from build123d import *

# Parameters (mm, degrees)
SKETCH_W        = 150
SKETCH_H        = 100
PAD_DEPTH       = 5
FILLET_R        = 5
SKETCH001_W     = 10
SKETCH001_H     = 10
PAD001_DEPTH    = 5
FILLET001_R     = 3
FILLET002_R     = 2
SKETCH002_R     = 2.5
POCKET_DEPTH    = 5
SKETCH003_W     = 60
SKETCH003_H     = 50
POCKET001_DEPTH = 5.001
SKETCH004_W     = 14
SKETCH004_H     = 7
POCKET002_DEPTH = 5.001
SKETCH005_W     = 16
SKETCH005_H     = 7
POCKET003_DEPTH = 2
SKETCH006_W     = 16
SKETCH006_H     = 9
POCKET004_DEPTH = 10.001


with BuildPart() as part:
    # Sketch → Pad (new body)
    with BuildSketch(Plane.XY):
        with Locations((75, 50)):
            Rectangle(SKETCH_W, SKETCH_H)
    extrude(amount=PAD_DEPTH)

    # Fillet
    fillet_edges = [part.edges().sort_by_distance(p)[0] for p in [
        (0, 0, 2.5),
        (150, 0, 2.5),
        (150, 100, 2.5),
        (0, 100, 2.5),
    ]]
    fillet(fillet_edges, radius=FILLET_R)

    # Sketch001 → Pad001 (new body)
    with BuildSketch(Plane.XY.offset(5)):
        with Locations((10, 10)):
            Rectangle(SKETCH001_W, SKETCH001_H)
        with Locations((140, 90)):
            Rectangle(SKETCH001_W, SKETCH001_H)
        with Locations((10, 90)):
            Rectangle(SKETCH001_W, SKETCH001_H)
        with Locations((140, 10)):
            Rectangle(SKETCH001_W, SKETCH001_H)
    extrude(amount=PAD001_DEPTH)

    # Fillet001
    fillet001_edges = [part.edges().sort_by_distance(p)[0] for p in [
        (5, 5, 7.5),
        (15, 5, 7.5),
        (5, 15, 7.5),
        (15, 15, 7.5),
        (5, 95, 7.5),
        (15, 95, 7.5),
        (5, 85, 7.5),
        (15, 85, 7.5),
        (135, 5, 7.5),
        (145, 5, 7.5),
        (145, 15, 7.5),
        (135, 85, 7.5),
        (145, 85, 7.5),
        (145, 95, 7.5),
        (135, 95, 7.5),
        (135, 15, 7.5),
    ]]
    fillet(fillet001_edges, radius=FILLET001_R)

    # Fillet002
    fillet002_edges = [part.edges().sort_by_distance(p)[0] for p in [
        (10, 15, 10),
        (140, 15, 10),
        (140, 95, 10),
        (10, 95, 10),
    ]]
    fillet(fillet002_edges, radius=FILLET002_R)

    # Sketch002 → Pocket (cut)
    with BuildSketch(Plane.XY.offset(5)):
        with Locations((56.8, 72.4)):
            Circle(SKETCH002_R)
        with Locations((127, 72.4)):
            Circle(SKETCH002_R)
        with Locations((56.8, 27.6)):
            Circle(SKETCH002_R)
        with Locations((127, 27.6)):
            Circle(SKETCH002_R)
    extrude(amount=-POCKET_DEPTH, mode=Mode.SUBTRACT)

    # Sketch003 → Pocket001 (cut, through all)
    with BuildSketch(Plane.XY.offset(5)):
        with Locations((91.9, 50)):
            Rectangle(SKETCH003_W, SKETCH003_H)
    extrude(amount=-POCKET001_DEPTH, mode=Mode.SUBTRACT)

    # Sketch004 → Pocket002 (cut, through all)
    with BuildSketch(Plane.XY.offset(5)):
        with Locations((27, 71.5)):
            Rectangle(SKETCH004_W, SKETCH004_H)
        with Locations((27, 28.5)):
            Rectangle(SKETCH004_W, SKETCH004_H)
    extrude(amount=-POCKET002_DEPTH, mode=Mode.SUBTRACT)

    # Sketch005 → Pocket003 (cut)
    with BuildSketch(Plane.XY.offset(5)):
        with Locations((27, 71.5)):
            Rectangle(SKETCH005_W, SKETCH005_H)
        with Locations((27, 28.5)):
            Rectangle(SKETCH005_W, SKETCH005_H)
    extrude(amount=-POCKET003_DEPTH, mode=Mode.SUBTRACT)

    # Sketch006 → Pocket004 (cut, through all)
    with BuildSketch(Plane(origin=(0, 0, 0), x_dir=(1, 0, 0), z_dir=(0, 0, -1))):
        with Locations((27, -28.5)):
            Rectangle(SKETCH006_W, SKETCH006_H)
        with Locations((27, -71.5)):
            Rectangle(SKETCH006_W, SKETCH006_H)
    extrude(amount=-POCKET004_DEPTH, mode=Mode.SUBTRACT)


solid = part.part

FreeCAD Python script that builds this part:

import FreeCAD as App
import Part
import Sketcher


def edges_at(feature, points):
    """Names of the edges that pass closest to the given points."""
    edges = feature.Shape.Edges
    near = lambda p: min(range(len(edges)), key=lambda i: edges[i].distToShape(Part.Vertex(*p))[0])
    return sorted({f"Edge{near(p) + 1}" for p in points})


def add_polygon(sketch, points):
    """Adds a closed chain of lines whose ends are joined by coincident constraints."""
    first, n = sketch.GeometryCount, len(points)
    for a, b in zip(points, points[1:] + points[:1]):
        sketch.addGeometry(Part.LineSegment(App.Vector(*a, 0), App.Vector(*b, 0)), False)
    for i in range(n):
        sketch.addConstraint(Sketcher.Constraint("Coincident", first + i, 2, first + (i + 1) % n, 1))

doc = App.newDocument("Part")
params = doc.addObject("Spreadsheet::Sheet", "Params")
for row, (alias, value) in enumerate([
    ("sketch1_width", "150 mm"),
    ("sketch1_height", "100 mm"),
    ("pad1_length", "5 mm"),
    ("fillet_radius", "5 mm"),
    ("sketch2_width", "10 mm"),
    ("pad2_length", "5 mm"),
    ("fillet2_radius", "3 mm"),
    ("fillet3_radius", "2 mm"),
    ("sketch3_diameter", "5 mm"),
    ("pocket1_length", "5 mm"),
    ("sketch4_width", "60 mm"),
    ("sketch4_height", "50 mm"),
    ("sketch5_width", "14 mm"),
    ("sketch5_height", "7 mm"),
    ("sketch6_width", "16 mm"),
    ("sketch6_height", "7 mm"),
    ("pocket4_length", "2 mm"),
    ("sketch7_width", "16 mm"),
    ("sketch7_height", "9 mm"),
], start=1):
    params.set(f"A{row}", alias)
    params.set(f"B{row}", "=" + value)
    params.setAlias(f"B{row}", alias)

body = doc.addObject("PartDesign::Body", "Body")

# Sketch on XY plane
sketch1 = body.newObject("Sketcher::SketchObject", "Sketch")
sketch1.AttachmentSupport = (doc.getObject("XY_Plane"), [""])
sketch1.MapMode = "FlatFace"
add_polygon(sketch1, [(0, 100), (0, 0), (150, 0), (150, 100)])  # lines 0-3
sketch1.addConstraint([
    Sketcher.Constraint("Vertical", 0),
    Sketcher.Constraint("Horizontal", 1),
    Sketcher.Constraint("Vertical", 2),
    Sketcher.Constraint("Horizontal", 3),
    Sketcher.Constraint("Coincident", 0, 2, -1, 1),
    Sketcher.Constraint("DistanceX", 1, 1, 1, 2, 150.0),
    Sketcher.Constraint("DistanceY", 0, 2, 0, 1, 100.0),
])
sketch1.setExpression("Constraints[9]", "Params.sketch1_width")
sketch1.setExpression("Constraints[10]", "Params.sketch1_height")
pad1 = body.newObject("PartDesign::Pad", "Pad")
pad1.Profile = sketch1
pad1.setExpression("Length", "Params.pad1_length")
doc.recompute()

fillet = body.newObject("PartDesign::Fillet", "Fillet")
fillet.Base = (pad1, edges_at(pad1, [
    (0, 0, 2.5),
    (150, 0, 2.5),
    (150, 100, 2.5),
    (0, 100, 2.5),
]))
fillet.setExpression("Radius", "Params.fillet_radius")

# Sketch on XY plane
sketch2 = body.newObject("Sketcher::SketchObject", "Sketch001")
sketch2.AttachmentSupport = (doc.getObject("XY_Plane"), [""])
sketch2.MapMode = "FlatFace"
sketch2.AttachmentOffset = App.Placement(App.Vector(0, 0, 5), App.Rotation())
add_polygon(sketch2, [(5, 15), (5, 5), (15, 5), (15, 15)])  # lines 0-3
add_polygon(sketch2, [(135, 95), (135, 85), (145, 85), (145, 95)])  # lines 4-7
add_polygon(sketch2, [(5, 95), (5, 85), (15, 85), (15, 95)])  # lines 8-11
add_polygon(sketch2, [(135, 15), (135, 5), (145, 5), (145, 15)])  # lines 12-15
sketch2.addConstraint([
    Sketcher.Constraint("Vertical", 0),
    Sketcher.Constraint("Horizontal", 1),
    Sketcher.Constraint("Vertical", 2),
    Sketcher.Constraint("Horizontal", 3),
    Sketcher.Constraint("Vertical", 4),
    Sketcher.Constraint("Horizontal", 5),
    Sketcher.Constraint("Vertical", 6),
    Sketcher.Constraint("Horizontal", 7),
    Sketcher.Constraint("Vertical", 8),
    Sketcher.Constraint("Horizontal", 9),
    Sketcher.Constraint("Vertical", 10),
    Sketcher.Constraint("Horizontal", 11),
    Sketcher.Constraint("Vertical", 12),
    Sketcher.Constraint("Horizontal", 13),
    Sketcher.Constraint("Vertical", 14),
    Sketcher.Constraint("Horizontal", 15),
    Sketcher.Constraint("Horizontal", 5, 2, 8, 2),
    Sketcher.Constraint("Horizontal", 7, 2, 10, 2),
    Sketcher.Constraint("Horizontal", 1, 2, 12, 2),
    Sketcher.Constraint("Horizontal", 3, 2, 14, 2),
    Sketcher.Constraint("Vertical", 3, 2, 8, 2),
    Sketcher.Constraint("Vertical", 2, 2, 9, 2),
    Sketcher.Constraint("Vertical", 7, 2, 12, 2),
    Sketcher.Constraint("Vertical", 6, 2, 13, 2),
    Sketcher.Constraint("Equal", 3, 5),
    Sketcher.Constraint("Equal", 15, 0),
    Sketcher.Constraint("Equal", 2, 4),
    Sketcher.Constraint("DistanceX", 1, 1, 1, 2, 10.0),
    Sketcher.Constraint("DistanceX", -1, 1, 0, 2, 5.0),
    Sketcher.Constraint("DistanceY", -1, 1, 0, 2, 5.0),
    Sketcher.Constraint("DistanceX", -1, 1, 4, 2, 135.0),
    Sketcher.Constraint("DistanceY", -1, 1, 4, 2, 85.0),
])
sketch2.setExpression("Constraints[43]", "Params.sketch2_width")
pad2 = body.newObject("PartDesign::Pad", "Pad001")
pad2.Profile = sketch2
pad2.setExpression("Length", "Params.pad2_length")
doc.recompute()

fillet2 = body.newObject("PartDesign::Fillet", "Fillet001")
fillet2.Base = (pad2, edges_at(pad2, [
    (5, 5, 7.5),
    (15, 5, 7.5),
    (5, 15, 7.5),
    (15, 15, 7.5),
    (5, 95, 7.5),
    (15, 95, 7.5),
    (5, 85, 7.5),
    (15, 85, 7.5),
    (135, 5, 7.5),
    (145, 5, 7.5),
    (145, 15, 7.5),
    (135, 85, 7.5),
    (145, 85, 7.5),
    (145, 95, 7.5),
    (135, 95, 7.5),
    (135, 15, 7.5),
]))
fillet2.setExpression("Radius", "Params.fillet2_radius")
doc.recompute()

fillet3 = body.newObject("PartDesign::Fillet", "Fillet002")
fillet3.Base = (fillet2, edges_at(fillet2, [
    (10, 15, 10),
    (140, 15, 10),
    (140, 95, 10),
    (10, 95, 10),
]))
fillet3.setExpression("Radius", "Params.fillet3_radius")

# Sketch on XY plane
sketch3 = body.newObject("Sketcher::SketchObject", "Sketch002")
sketch3.AttachmentSupport = (doc.getObject("XY_Plane"), [""])
sketch3.MapMode = "FlatFace"
sketch3.AttachmentOffset = App.Placement(App.Vector(0, 0, 5), App.Rotation())
sketch3.addGeometry([
    Part.Circle(App.Vector(56.8, 72.4, 0), App.Vector(0, 0, 1), 2.5),
    Part.Circle(App.Vector(127, 72.4, 0), App.Vector(0, 0, 1), 2.5),
    Part.Circle(App.Vector(56.8, 27.6, 0), App.Vector(0, 0, 1), 2.5),
    Part.Circle(App.Vector(127, 27.6, 0), App.Vector(0, 0, 1), 2.5),
], False)
sketch3.addConstraint([
    Sketcher.Constraint("Equal", 0, 1),
    Sketcher.Constraint("Equal", 1, 2),
    Sketcher.Constraint("Equal", 2, 3),
    Sketcher.Constraint("Horizontal", 0, 3, 1, 3),
    Sketcher.Constraint("Horizontal", 2, 3, 3, 3),
    Sketcher.Constraint("Vertical", 0, 3, 2, 3),
    Sketcher.Constraint("Vertical", 1, 3, 3, 3),
    Sketcher.Constraint("Diameter", 0, 5.0),
    Sketcher.Constraint("DistanceX", -1, 1, 1, 3, 127.0),
    Sketcher.Constraint("DistanceX", -1, 1, 0, 3, 56.8),
    Sketcher.Constraint("DistanceY", -1, 1, 0, 3, 72.4),
    Sketcher.Constraint("DistanceY", -1, 1, 2, 3, 27.6),
])
sketch3.setExpression("Constraints[7]", "Params.sketch3_diameter")
pocket1 = body.newObject("PartDesign::Pocket", "Pocket")
pocket1.Profile = sketch3
pocket1.setExpression("Length", "Params.pocket1_length")

# Sketch on XY plane
sketch4 = body.newObject("Sketcher::SketchObject", "Sketch003")
sketch4.AttachmentSupport = (doc.getObject("XY_Plane"), [""])
sketch4.MapMode = "FlatFace"
sketch4.AttachmentOffset = App.Placement(App.Vector(0, 0, 5), App.Rotation())
add_polygon(sketch4, [(62, 75), (62, 25), (122, 25), (122, 75)])  # lines 0-3
sketch4.addConstraint([
    Sketcher.Constraint("Vertical", 0),
    Sketcher.Constraint("Horizontal", 1),
    Sketcher.Constraint("Vertical", 2),
    Sketcher.Constraint("Horizontal", 3),
    Sketcher.Constraint("DistanceX", 1, 1, 1, 2, 60.0),
    Sketcher.Constraint("DistanceY", 0, 2, 0, 1, 50.0),
    Sketcher.Constraint("DistanceY", -1, 1, 0, 2, 25.0),
    Sketcher.Constraint("DistanceX", -1, 1, 0, 2, 61.9),
])
sketch4.setExpression("Constraints[8]", "Params.sketch4_width")
sketch4.setExpression("Constraints[9]", "Params.sketch4_height")
pocket2 = body.newObject("PartDesign::Pocket", "Pocket001")
pocket2.Profile = sketch4
pocket2.Type = "ThroughAll"

# Sketch on XY plane
sketch5 = body.newObject("Sketcher::SketchObject", "Sketch004")
sketch5.AttachmentSupport = (doc.getObject("XY_Plane"), [""])
sketch5.MapMode = "FlatFace"
sketch5.AttachmentOffset = App.Placement(App.Vector(0, 0, 5), App.Rotation())
add_polygon(sketch5, [(20, 75), (20, 68), (34, 68), (34, 75)])  # lines 0-3
add_polygon(sketch5, [(20, 32), (20, 25), (34, 25), (34, 32)])  # lines 4-7
sketch5.addConstraint([
    Sketcher.Constraint("Vertical", 0),
    Sketcher.Constraint("Horizontal", 1),
    Sketcher.Constraint("Vertical", 2),
    Sketcher.Constraint("Horizontal", 3),
    Sketcher.Constraint("Vertical", 4),
    Sketcher.Constraint("Horizontal", 5),
    Sketcher.Constraint("Vertical", 6),
    Sketcher.Constraint("Horizontal", 7),
    Sketcher.Constraint("Vertical", 3, 2, 4, 2),
    Sketcher.Constraint("Vertical", 2, 2, 5, 2),
    Sketcher.Constraint("Equal", 2, 4),
    Sketcher.Constraint("DistanceX", 1, 1, 1, 2, 14.0),
    Sketcher.Constraint("DistanceY", 0, 2, 0, 1, 7.0),
    Sketcher.Constraint("DistanceX", -1, 1, 0, 2, 20.0),
    Sketcher.Constraint("DistanceY", -1, 1, 0, 2, 68.0),
    Sketcher.Constraint("DistanceY", -1, 1, 4, 2, 25.0),
])
sketch5.setExpression("Constraints[19]", "Params.sketch5_width")
sketch5.setExpression("Constraints[20]", "Params.sketch5_height")
pocket3 = body.newObject("PartDesign::Pocket", "Pocket002")
pocket3.Profile = sketch5
pocket3.Type = "ThroughAll"

# Sketch on XY plane
sketch6 = body.newObject("Sketcher::SketchObject", "Sketch005")
sketch6.AttachmentSupport = (doc.getObject("XY_Plane"), [""])
sketch6.MapMode = "FlatFace"
sketch6.AttachmentOffset = App.Placement(App.Vector(0, 0, 5), App.Rotation())
add_polygon(sketch6, [(19, 75), (19, 68), (35, 68), (35, 75)])  # lines 0-3
add_polygon(sketch6, [(19, 32), (19, 25), (35, 25), (35, 32)])  # lines 4-7
sketch6.addConstraint([
    Sketcher.Constraint("Vertical", 0),
    Sketcher.Constraint("Horizontal", 1),
    Sketcher.Constraint("Vertical", 2),
    Sketcher.Constraint("Horizontal", 3),
    Sketcher.Constraint("Vertical", 4),
    Sketcher.Constraint("Horizontal", 5),
    Sketcher.Constraint("Vertical", 6),
    Sketcher.Constraint("Horizontal", 7),
    Sketcher.Constraint("Vertical", 3, 2, 4, 2),
    Sketcher.Constraint("Vertical", 2, 2, 5, 2),
    Sketcher.Constraint("Equal", 2, 4),
    Sketcher.Constraint("DistanceX", 1, 1, 1, 2, 16.0),
    Sketcher.Constraint("DistanceY", 0, 2, 0, 1, 7.0),
    Sketcher.Constraint("DistanceX", -1, 1, 0, 2, 19.0),
    Sketcher.Constraint("DistanceY", -1, 1, 0, 2, 68.0),
    Sketcher.Constraint("DistanceY", -1, 1, 4, 2, 25.0),
])
sketch6.setExpression("Constraints[19]", "Params.sketch6_width")
sketch6.setExpression("Constraints[20]", "Params.sketch6_height")
pocket4 = body.newObject("PartDesign::Pocket", "Pocket003")
pocket4.Profile = sketch6
pocket4.setExpression("Length", "Params.pocket4_length")

# Sketch on XY plane
sketch7 = body.newObject("Sketcher::SketchObject", "Sketch006")
sketch7.AttachmentSupport = (doc.getObject("XY_Plane"), [""])
sketch7.MapMode = "FlatFace"
add_polygon(sketch7, [(19, 24), (19, 33), (35, 33), (35, 24)])  # lines 0-3
add_polygon(sketch7, [(19, 67), (19, 76), (35, 76), (35, 67)])  # lines 4-7
sketch7.addConstraint([
    Sketcher.Constraint("Vertical", 0),
    Sketcher.Constraint("Horizontal", 1),
    Sketcher.Constraint("Vertical", 2),
    Sketcher.Constraint("Horizontal", 3),
    Sketcher.Constraint("Vertical", 4),
    Sketcher.Constraint("Horizontal", 5),
    Sketcher.Constraint("Vertical", 6),
    Sketcher.Constraint("Horizontal", 7),
    Sketcher.Constraint("Vertical", 3, 2, 4, 2),
    Sketcher.Constraint("Vertical", 2, 2, 5, 2),
    Sketcher.Constraint("Equal", 2, 4),
    Sketcher.Constraint("DistanceX", 1, 1, 1, 2, 16.0),
    Sketcher.Constraint("DistanceY", 0, 1, 0, 2, 9.0),
    Sketcher.Constraint("DistanceX", -1, 1, 0, 2, 19.0),
    Sketcher.Constraint("DistanceY", -1, 1, 0, 2, 33.0),
    Sketcher.Constraint("DistanceY", -1, 1, 4, 2, 76.0),
])
sketch7.setExpression("Constraints[19]", "Params.sketch7_width")
sketch7.setExpression("Constraints[20]", "Params.sketch7_height")
pocket5 = body.newObject("PartDesign::Pocket", "Pocket004")
pocket5.Profile = sketch7
pocket5.Type = "ThroughAll"
pocket5.Reversed = True

doc.recompute()
